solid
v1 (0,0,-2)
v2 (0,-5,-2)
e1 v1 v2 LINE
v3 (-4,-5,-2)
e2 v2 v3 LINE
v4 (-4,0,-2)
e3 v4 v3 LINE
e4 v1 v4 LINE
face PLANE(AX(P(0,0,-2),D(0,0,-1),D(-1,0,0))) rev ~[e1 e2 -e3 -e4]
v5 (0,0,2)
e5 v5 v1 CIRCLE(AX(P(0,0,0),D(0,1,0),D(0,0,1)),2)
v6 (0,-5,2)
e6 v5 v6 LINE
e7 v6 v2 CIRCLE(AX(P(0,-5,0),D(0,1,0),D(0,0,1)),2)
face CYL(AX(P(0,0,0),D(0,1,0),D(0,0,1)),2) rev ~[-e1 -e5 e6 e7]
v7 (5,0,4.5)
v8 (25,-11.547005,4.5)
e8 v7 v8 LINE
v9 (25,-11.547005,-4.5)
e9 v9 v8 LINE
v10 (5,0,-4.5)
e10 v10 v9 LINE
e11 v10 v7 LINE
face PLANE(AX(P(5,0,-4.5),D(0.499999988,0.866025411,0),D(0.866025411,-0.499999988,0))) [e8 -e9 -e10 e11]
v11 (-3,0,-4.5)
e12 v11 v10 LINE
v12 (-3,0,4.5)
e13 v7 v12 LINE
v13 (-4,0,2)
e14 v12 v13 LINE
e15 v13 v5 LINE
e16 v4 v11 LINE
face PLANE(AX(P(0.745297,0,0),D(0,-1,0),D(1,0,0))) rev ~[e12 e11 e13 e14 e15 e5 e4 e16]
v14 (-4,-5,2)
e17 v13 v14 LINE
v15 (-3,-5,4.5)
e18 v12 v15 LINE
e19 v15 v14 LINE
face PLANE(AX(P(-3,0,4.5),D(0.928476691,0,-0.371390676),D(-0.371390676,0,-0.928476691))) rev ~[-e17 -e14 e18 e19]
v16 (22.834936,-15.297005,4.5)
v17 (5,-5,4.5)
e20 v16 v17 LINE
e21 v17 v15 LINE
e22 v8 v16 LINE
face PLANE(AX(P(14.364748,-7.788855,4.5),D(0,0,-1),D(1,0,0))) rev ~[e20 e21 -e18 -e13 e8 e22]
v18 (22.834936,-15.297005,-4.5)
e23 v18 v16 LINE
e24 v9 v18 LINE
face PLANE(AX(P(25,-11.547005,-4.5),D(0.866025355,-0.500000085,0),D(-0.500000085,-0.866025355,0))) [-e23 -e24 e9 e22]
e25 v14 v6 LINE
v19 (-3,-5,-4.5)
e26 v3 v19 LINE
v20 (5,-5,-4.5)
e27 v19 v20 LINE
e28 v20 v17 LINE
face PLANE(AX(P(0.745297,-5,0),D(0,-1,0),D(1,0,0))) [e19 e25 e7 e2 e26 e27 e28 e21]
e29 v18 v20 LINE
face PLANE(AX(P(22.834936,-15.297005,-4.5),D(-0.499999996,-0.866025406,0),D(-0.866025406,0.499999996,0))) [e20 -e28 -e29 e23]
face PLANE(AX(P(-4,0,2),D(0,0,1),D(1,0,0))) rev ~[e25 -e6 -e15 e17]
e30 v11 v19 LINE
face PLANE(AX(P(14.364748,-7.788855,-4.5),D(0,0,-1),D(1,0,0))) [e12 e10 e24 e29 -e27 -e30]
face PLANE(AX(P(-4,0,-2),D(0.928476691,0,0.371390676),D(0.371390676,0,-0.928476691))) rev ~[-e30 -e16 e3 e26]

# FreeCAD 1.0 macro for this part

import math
import FreeCAD as App
import Part
import Sketcher
from FreeCAD import Vector
Q = App.Units.Quantity

doc = App.newDocument("Part")
body = doc.addObject("PartDesign::Body", "Body")

# Sketch on XZ plane
sketch1 = doc.addObject("Sketcher::SketchObject", "Sketch")
body.addObject(sketch1)
sketch1.AttachmentSupport = (doc.XZ_Plane, [""])
sketch1.MapMode = "FlatFace"
sketch1.addGeometry([
    Part.ArcOfCircle(Part.Circle(Vector(0, 0, 0), Vector(0, 0, 1), 2), math.radians(-90), math.radians(90)),  # 0
    Part.LineSegment(Vector(0, -2, 0), Vector(-4, -2, 0)),  # 1
    Part.LineSegment(Vector(-4, -2, 0), Vector(-3, -4.5, 0)),  # 2
    Part.LineSegment(Vector(-3, -4.5, 0), Vector(5, -4.5, 0)),  # 3
    Part.LineSegment(Vector(5, -4.5, 0), Vector(5, 4.5, 0)),  # 4
    Part.LineSegment(Vector(5, 4.5, 0), Vector(-3, 4.5, 0)),  # 5
    Part.LineSegment(Vector(-3, 4.5, 0), Vector(-4, 2, 0)),  # 6
    Part.LineSegment(Vector(-4, 2, 0), Vector(0, 2, 0)),  # 7
], False)
sketch1.addConstraint([
    Sketcher.Constraint("Tangent", 0, 1, 1, 1),
    Sketcher.Constraint("Coincident", 1, 2, 2, 1),
    Sketcher.Constraint("Coincident", 2, 2, 3, 1),
    Sketcher.Constraint("Coincident", 3, 2, 4, 1),
    Sketcher.Constraint("Coincident", 4, 2, 5, 1),
    Sketcher.Constraint("Coincident", 5, 2, 6, 1),
    Sketcher.Constraint("Coincident", 6, 2, 7, 1),
    Sketcher.Constraint("Tangent", 7, 2, 0, 2),
    Sketcher.Constraint("Horizontal", 1),
    Sketcher.Constraint("Horizontal", 3),
    Sketcher.Constraint("Vertical", 4),
    Sketcher.Constraint("Horizontal", 5),
    Sketcher.Constraint("Horizontal", 7),
    Sketcher.Constraint("Coincident", 0, 3, -1, 1),
    Sketcher.Constraint("Symmetric", 2, 2, 5, 2, -1),
    Sketcher.Constraint("Vertical", 1, 2, 6, 2),
    Sketcher.Constraint("Radius", 0, Q("2 mm")),
    Sketcher.Constraint("DistanceX", 1, 2, 1, 1, Q("4 mm")),
    Sketcher.Constraint("DistanceX", 3, 1, 3, 2, Q("8 mm")),
    Sketcher.Constraint("DistanceY", 4, 1, 4, 2, Q("9 mm")),
    Sketcher.Constraint("DistanceX", 2, 2, -1, 1, Q("3 mm")),
])
pad1 = doc.addObject("PartDesign::Pad", "Pad")
body.addObject(pad1)
pad1.Profile = sketch1
pad1.Length = 5

# Sketch on XY plane
sketch2 = doc.addObject("Sketcher::SketchObject", "Sketch001")
body.addObject(sketch2)
sketch2.AttachmentSupport = (doc.XY_Plane, [""])
sketch2.MapMode = "FlatFace"
sketch2.AttachmentOffset = App.Placement(Vector(0, 0, -4.5), App.Rotation())
sketch2.addGeometry([
    Part.LineSegment(Vector(5, -5, 0), Vector(5, 0, 0)),
    Part.LineSegment(Vector(5, 0, 0), Vector(25, -11.5, 0)),
    Part.LineSegment(Vector(25, -11.5, 0), Vector(22.8, -15.3, 0)),
    Part.LineSegment(Vector(22.8, -15.3, 0), Vector(5, -5, 0)),
], False)
sketch2.addConstraint([
    Sketcher.Constraint("Coincident", 0, 2, 1, 1),
    Sketcher.Constraint("Coincident", 1, 2, 2, 1),
    Sketcher.Constraint("Coincident", 2, 2, 3, 1),
    Sketcher.Constraint("Coincident", 3, 2, 0, 1),
    Sketcher.Constraint("Vertical", 0),
    Sketcher.Constraint("PointOnObject", 0, 2, -1),
    Sketcher.Constraint("Perpendicular", 1, 2),
    Sketcher.Constraint("Perpendicular", 2, 3),
    Sketcher.Constraint("DistanceY", 0, 1, 0, 2, Q("5 mm")),
    Sketcher.Constraint("Angle", 1, Q("-29.999999 deg")),
    Sketcher.Constraint("DistanceX", -1, 1, 0, 2, Q("5 mm")),
    Sketcher.Constraint("DistanceX", -1, 1, 1, 2, Q("25 mm")),
])
pad2 = doc.addObject("PartDesign::Pad", "Pad001")
body.addObject(pad2)
pad2.Profile = sketch2
pad2.Length = 9

doc.recompute()
